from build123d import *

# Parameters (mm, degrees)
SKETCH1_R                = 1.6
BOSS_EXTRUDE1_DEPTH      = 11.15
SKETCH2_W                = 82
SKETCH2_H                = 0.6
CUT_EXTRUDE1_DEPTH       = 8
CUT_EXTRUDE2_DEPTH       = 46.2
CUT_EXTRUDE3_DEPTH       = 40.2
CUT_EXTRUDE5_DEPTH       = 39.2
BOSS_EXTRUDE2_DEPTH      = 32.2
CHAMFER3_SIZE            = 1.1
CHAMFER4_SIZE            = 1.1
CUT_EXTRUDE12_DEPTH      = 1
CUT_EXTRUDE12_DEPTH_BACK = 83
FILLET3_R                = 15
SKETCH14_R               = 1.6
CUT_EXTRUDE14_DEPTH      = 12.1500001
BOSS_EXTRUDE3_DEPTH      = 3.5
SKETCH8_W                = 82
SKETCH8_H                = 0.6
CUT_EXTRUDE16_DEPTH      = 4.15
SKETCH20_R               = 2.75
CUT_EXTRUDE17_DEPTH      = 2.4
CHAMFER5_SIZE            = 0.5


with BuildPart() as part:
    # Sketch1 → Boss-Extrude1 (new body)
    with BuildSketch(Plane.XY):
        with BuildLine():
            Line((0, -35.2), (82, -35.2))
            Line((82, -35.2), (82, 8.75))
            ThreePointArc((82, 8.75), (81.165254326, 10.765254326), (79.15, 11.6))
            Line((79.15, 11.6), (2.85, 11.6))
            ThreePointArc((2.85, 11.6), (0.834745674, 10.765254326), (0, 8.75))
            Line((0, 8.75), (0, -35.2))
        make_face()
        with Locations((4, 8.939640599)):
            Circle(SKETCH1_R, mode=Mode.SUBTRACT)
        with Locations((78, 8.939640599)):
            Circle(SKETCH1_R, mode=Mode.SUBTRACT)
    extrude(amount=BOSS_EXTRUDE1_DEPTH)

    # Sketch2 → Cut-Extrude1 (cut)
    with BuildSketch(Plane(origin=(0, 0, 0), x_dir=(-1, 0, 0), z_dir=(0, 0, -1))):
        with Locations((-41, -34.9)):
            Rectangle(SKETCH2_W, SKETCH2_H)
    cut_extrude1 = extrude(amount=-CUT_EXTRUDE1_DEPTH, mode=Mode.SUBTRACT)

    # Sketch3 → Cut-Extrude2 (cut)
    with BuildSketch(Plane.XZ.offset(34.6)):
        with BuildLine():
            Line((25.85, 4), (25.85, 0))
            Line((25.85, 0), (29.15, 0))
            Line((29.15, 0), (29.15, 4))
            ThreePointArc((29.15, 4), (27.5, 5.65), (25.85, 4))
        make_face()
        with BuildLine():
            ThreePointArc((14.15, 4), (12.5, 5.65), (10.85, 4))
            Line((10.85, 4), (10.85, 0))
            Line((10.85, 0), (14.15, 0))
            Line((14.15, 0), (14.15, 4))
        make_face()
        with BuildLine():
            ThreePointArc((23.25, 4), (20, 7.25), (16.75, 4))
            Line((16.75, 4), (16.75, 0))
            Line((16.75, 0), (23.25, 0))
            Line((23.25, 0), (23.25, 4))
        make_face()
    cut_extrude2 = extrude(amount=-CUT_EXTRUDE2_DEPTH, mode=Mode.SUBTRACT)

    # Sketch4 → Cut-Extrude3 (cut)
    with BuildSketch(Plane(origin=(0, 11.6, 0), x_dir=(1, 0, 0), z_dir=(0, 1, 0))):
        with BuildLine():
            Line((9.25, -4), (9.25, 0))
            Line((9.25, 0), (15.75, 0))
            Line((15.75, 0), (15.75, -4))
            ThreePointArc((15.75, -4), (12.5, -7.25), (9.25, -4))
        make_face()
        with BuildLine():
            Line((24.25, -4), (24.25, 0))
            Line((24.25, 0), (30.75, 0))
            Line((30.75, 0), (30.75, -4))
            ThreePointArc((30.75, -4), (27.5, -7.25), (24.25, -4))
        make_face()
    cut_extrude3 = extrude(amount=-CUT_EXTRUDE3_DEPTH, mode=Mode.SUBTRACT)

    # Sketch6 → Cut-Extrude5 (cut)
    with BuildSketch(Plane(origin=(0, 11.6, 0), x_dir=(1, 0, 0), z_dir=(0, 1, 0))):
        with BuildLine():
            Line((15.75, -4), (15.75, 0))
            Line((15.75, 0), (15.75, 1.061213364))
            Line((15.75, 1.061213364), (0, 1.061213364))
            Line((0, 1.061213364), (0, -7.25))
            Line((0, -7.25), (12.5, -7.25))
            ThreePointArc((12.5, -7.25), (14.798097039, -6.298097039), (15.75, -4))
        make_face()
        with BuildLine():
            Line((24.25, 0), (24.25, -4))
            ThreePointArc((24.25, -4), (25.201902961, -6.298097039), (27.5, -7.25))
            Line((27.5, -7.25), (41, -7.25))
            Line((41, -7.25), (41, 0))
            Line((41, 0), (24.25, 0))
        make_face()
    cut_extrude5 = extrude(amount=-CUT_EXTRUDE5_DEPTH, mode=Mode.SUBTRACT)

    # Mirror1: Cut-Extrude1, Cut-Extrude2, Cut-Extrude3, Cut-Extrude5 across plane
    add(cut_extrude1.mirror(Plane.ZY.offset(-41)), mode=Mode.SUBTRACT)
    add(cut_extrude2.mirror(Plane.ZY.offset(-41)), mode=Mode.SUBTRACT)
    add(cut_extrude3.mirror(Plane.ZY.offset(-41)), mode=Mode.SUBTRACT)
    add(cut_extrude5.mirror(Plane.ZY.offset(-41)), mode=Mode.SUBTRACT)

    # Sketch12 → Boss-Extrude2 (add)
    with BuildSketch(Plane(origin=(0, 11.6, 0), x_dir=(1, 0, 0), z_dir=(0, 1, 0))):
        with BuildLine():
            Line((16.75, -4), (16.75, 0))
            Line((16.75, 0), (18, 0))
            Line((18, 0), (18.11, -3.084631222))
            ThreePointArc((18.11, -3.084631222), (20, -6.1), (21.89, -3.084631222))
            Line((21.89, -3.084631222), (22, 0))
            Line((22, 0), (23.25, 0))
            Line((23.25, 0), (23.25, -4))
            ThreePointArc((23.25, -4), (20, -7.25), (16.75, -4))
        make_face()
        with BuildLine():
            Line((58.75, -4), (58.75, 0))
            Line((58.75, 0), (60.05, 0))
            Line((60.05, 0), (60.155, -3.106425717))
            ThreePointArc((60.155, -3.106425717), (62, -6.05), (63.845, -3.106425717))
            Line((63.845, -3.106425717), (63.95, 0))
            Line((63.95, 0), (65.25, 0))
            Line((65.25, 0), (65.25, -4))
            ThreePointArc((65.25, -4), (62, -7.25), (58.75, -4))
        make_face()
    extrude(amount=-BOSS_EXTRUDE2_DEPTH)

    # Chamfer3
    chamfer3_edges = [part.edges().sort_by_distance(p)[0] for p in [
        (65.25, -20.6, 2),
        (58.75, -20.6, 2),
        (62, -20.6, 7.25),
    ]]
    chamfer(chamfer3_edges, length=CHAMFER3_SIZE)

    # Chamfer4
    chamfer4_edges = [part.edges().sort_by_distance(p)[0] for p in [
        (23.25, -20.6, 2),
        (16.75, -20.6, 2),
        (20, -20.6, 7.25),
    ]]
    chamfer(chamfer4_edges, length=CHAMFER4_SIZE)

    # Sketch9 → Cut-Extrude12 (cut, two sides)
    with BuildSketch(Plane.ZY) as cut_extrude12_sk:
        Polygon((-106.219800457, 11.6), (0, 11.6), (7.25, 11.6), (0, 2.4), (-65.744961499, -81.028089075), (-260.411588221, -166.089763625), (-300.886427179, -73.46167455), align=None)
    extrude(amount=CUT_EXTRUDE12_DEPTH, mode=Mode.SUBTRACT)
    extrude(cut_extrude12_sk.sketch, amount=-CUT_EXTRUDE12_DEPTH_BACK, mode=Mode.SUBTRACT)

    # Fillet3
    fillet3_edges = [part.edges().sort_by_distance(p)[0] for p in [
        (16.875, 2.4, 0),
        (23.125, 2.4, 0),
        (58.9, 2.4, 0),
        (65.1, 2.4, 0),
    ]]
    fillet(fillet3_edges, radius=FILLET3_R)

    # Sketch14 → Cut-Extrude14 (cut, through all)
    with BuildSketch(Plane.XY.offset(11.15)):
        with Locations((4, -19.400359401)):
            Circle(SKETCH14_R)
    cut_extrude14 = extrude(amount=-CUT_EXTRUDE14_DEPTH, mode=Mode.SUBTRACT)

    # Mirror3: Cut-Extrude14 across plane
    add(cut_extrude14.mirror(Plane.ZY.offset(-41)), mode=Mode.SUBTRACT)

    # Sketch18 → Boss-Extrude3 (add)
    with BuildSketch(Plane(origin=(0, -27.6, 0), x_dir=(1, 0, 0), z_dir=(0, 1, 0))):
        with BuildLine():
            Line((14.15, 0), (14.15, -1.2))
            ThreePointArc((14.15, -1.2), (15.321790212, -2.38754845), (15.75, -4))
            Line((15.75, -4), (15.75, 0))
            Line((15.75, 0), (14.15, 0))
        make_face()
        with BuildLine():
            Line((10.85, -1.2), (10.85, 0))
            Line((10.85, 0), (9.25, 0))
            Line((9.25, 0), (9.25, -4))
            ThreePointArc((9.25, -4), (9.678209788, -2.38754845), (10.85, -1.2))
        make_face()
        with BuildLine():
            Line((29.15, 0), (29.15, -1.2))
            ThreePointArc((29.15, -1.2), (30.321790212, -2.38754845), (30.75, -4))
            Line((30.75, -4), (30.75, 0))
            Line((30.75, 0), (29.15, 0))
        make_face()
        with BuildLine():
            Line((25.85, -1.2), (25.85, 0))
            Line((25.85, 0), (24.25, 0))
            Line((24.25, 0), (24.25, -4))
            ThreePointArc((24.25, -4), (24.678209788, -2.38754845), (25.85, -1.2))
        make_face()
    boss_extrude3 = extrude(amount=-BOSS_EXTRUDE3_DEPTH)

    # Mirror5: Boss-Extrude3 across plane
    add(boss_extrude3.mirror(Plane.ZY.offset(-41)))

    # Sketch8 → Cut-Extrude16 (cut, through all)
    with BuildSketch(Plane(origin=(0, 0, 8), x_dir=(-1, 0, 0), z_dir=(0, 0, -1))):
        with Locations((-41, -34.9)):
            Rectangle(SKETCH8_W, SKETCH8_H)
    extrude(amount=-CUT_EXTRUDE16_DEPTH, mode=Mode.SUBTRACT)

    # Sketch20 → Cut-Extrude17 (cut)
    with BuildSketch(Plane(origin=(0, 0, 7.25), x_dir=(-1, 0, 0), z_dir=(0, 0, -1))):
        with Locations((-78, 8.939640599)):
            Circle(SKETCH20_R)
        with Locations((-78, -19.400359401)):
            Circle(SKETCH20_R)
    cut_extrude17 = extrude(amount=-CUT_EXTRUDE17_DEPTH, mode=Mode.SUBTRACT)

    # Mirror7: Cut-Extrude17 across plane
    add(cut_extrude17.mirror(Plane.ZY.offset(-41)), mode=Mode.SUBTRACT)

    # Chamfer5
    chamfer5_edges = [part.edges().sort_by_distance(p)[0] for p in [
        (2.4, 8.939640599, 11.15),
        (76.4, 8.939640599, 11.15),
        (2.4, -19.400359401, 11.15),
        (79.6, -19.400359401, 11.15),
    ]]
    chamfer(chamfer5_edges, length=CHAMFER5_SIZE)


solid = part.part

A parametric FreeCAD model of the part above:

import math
import FreeCAD as App
import Part
import Sketcher


def edges_at(feature, points):
    """Names of the edges that pass closest to the given points."""
    edges = feature.Shape.Edges
    near = lambda p: min(range(len(edges)), key=lambda i: edges[i].distToShape(Part.Vertex(*p))[0])
    return sorted({f"Edge{near(p) + 1}" for p in points})


def add_polygon(sketch, points):
    """Adds a closed chain of lines whose ends are joined by coincident constraints."""
    first, n = sketch.GeometryCount, len(points)
    for a, b in zip(points, points[1:] + points[:1]):
        sketch.addGeometry(Part.LineSegment(App.Vector(*a, 0), App.Vector(*b, 0)), False)
    for i in range(n):
        sketch.addConstraint(Sketcher.Constraint("Coincident", first + i, 2, first + (i + 1) % n, 1))

doc = App.newDocument("Part")
body = doc.addObject("PartDesign::Body", "Body")

# Sketch on XY plane
sketch1 = body.newObject("Sketcher::SketchObject", "Sketch")
sketch1.AttachmentSupport = (doc.getObject("XY_Plane"), [""])
sketch1.MapMode = "FlatFace"
sketch1.addGeometry(Part.LineSegment(App.Vector(0, -35.2, 0), App.Vector(82, -35.2, 0)), False)
sketch1.addGeometry(Part.LineSegment(App.Vector(82, -35.2, 0), App.Vector(82, 8.75, 0)), False)
sketch1.addGeometry(Part.ArcOfCircle(Part.Circle(App.Vector(79.15, 8.75, 0), App.Vector(0, 0, 1), 2.85), math.radians(0), math.radians(90)), False)
sketch1.addGeometry(Part.LineSegment(App.Vector(79.15, 11.6, 0), App.Vector(2.85, 11.6, 0)), False)
sketch1.addGeometry(Part.ArcOfCircle(Part.Circle(App.Vector(2.85, 8.75, 0), App.Vector(0, 0, 1), 2.85), math.radians(90), math.radians(180)), False)
sketch1.addGeometry(Part.LineSegment(App.Vector(0, 8.75, 0), App.Vector(0, -35.2, 0)), False)
sketch1.addGeometry(Part.Circle(App.Vector(4, 8.939641, 0), App.Vector(0, 0, 1), 1.6), False)
sketch1.addGeometry(Part.Circle(App.Vector(78, 8.939641, 0), App.Vector(0, 0, 1), 1.6), False)
sketch1.addConstraint(Sketcher.Constraint("Coincident", 0, 2, 1, 1))
sketch1.addConstraint(Sketcher.Constraint("Tangent", 1, 2, 2, 1))
sketch1.addConstraint(Sketcher.Constraint("Tangent", 2, 2, 3, 1))
sketch1.addConstraint(Sketcher.Constraint("Tangent", 3, 2, 4, 1))
sketch1.addConstraint(Sketcher.Constraint("Tangent", 4, 2, 5, 1))
sketch1.addConstraint(Sketcher.Constraint("Coincident", 5, 2, 0, 1))
sketch1.addConstraint(Sketcher.Constraint("Horizontal", 0))
sketch1.addConstraint(Sketcher.Constraint("Vertical", 1))
sketch1.addConstraint(Sketcher.Constraint("Horizontal", 3))
sketch1.addConstraint(Sketcher.Constraint("Vertical", 5))
sketch1.addConstraint(Sketcher.Constraint("Equal", 2, 4))
sketch1.addConstraint(Sketcher.Constraint("Equal", 6, 7))
sketch1.addConstraint(Sketcher.Constraint("PointOnObject", 4, 2, -2))
sketch1.addConstraint(Sketcher.Constraint("Horizontal", 6, 3, 7, 3))
sketch1.addConstraint(Sketcher.Constraint("Diameter", 6, 3.2))
sketch1.addConstraint(Sketcher.Constraint("DistanceX", 0, 1, 0, 2, 82.0))
sketch1.addConstraint(Sketcher.Constraint("Radius", 2, 2.85))
sketch1.addConstraint(Sketcher.Constraint("DistanceX", -1, 1, 6, 3, 4.0))
sketch1.addConstraint(Sketcher.Constraint("DistanceX", -1, 1, 7, 3, 78.0))
sketch1.addConstraint(Sketcher.Constraint("DistanceY", 1, 1, 1, 2, 43.95))
sketch1.addConstraint(Sketcher.Constraint("DistanceY", 0, 2, -1, 1, 35.2))
sketch1.addConstraint(Sketcher.Constraint("DistanceY", -1, 1, 6, 3, 8.939641))
pad1 = body.newObject("PartDesign::Pad", "Pad")
pad1.Profile = sketch1
pad1.Length = 11.15

# Sketch on XY plane
sketch2 = body.newObject("Sketcher::SketchObject", "Sketch001")
sketch2.AttachmentSupport = (doc.getObject("XY_Plane"), [""])
sketch2.MapMode = "FlatFace"
add_polygon(sketch2, [(82, -34.6), (82, -35.2), (0, -35.2), (0, -34.6)])  # lines 0-3
sketch2.addConstraint(Sketcher.Constraint("Vertical", 0))
sketch2.addConstraint(Sketcher.Constraint("Horizontal", 1))
sketch2.addConstraint(Sketcher.Constraint("Vertical", 2))
sketch2.addConstraint(Sketcher.Constraint("Horizontal", 3))
sketch2.addConstraint(Sketcher.Constraint("PointOnObject", 1, 2, -2))
sketch2.addConstraint(Sketcher.Constraint("DistanceX", 1, 2, 1, 1, 82.0))
sketch2.addConstraint(Sketcher.Constraint("DistanceY", 0, 2, 0, 1, 0.6))
sketch2.addConstraint(Sketcher.Constraint("DistanceY", 0, 2, -1, 1, 35.2))
pocket1 = body.newObject("PartDesign::Pocket", "Pocket")
pocket1.Profile = sketch2
pocket1.Length = 8
pocket1.Reversed = True

# Sketch on XZ plane
sketch3 = body.newObject("Sketcher::SketchObject", "Sketch002")
sketch3.AttachmentSupport = (doc.getObject("XZ_Plane"), [""])
sketch3.MapMode = "FlatFace"
sketch3.AttachmentOffset = App.Placement(App.Vector(0, 0, 34.6), App.Rotation())
sketch3.addGeometry(Part.LineSegment(App.Vector(25.85, 4, 0), App.Vector(25.85, 0, 0)), False)
sketch3.addGeometry(Part.LineSegment(App.Vector(25.85, 0, 0), App.Vector(29.15, 0, 0)), False)
sketch3.addGeometry(Part.LineSegment(App.Vector(29.15, 0, 0), App.Vector(29.15, 4, 0)), False)
sketch3.addGeometry(Part.ArcOfCircle(Part.Circle(App.Vector(27.5, 4, 0), App.Vector(0, 0, 1), 1.65), math.radians(0), math.radians(180)), False)
sketch3.addGeometry(Part.ArcOfCircle(Part.Circle(App.Vector(12.5, 4, 0), App.Vector(0, 0, 1), 1.65), math.radians(0), math.radians(180)), False)
sketch3.addGeometry(Part.LineSegment(App.Vector(10.85, 4, 0), App.Vector(10.85, 0, 0)), False)
sketch3.addGeometry(Part.LineSegment(App.Vector(10.85, 0, 0), App.Vector(14.15, 0, 0)), False)
sketch3.addGeometry(Part.LineSegment(App.Vector(14.15, 0, 0), App.Vector(14.15, 4, 0)), False)
sketch3.addGeometry(Part.ArcOfCircle(Part.Circle(App.Vector(20, 4, 0), App.Vector(0, 0, 1), 3.25), math.radians(0), math.radians(180)), False)
sketch3.addGeometry(Part.LineSegment(App.Vector(16.75, 4, 0), App.Vector(16.75, 0, 0)), False)
sketch3.addGeometry(Part.LineSegment(App.Vector(16.75, 0, 0), App.Vector(23.25, 0, 0)), False)
sketch3.addGeometry(Part.LineSegment(App.Vector(23.25, 0, 0), App.Vector(23.25, 4, 0)), False)
sketch3.addConstraint(Sketcher.Constraint("Coincident", 0, 2, 1, 1))
sketch3.addConstraint(Sketcher.Constraint("Coincident", 1, 2, 2, 1))
sketch3.addConstraint(Sketcher.Constraint("Tangent", 2, 2, 3, 1))
sketch3.addConstraint(Sketcher.Constraint("Tangent", 3, 2, 0, 1))
sketch3.addConstraint(Sketcher.Constraint("Tangent", 4, 2, 5, 1))
sketch3.addConstraint(Sketcher.Constraint("Coincident", 5, 2, 6, 1))
sketch3.addConstraint(Sketcher.Constraint("Coincident", 6, 2, 7, 1))
sketch3.addConstraint(Sketcher.Constraint("Tangent", 7, 2, 4, 1))
sketch3.addConstraint(Sketcher.Constraint("Tangent", 8, 2, 9, 1))
sketch3.addConstraint(Sketcher.Constraint("Coincident", 9, 2, 10, 1))
sketch3.addConstraint(Sketcher.Constraint("Coincident", 10, 2, 11, 1))
sketch3.addConstraint(Sketcher.Constraint("Tangent", 11, 2, 8, 1))
sketch3.addConstraint(Sketcher.Constraint("Vertical", 0))
sketch3.addConstraint(Sketcher.Constraint("Horizontal", 1))
sketch3.addConstraint(Sketcher.Constraint("Vertical", 2))
sketch3.addConstraint(Sketcher.Constraint("Vertical", 5))
sketch3.addConstraint(Sketcher.Constraint("Horizontal", 6))
sketch3.addConstraint(Sketcher.Constraint("Vertical", 7))
sketch3.addConstraint(Sketcher.Constraint("Vertical", 9))
sketch3.addConstraint(Sketcher.Constraint("Horizontal", 10))
sketch3.addConstraint(Sketcher.Constraint("Vertical", 11))
sketch3.addConstraint(Sketcher.Constraint("Equal", 3, 4))
sketch3.addConstraint(Sketcher.Constraint("PointOnObject", 0, 2, -1))
sketch3.addConstraint(Sketcher.Constraint("PointOnObject", 5, 2, -1))
sketch3.addConstraint(Sketcher.Constraint("PointOnObject", 9, 2, -1))
sketch3.addConstraint(Sketcher.Constraint("Horizontal", 3, 3, 4, 3))
sketch3.addConstraint(Sketcher.Constraint("Horizontal", 4, 3, 8, 3))
sketch3.addConstraint(Sketcher.Constraint("DistanceY", 0, 2, 0, 1, 4.0))
sketch3.addConstraint(Sketcher.Constraint("Radius", 3, 1.65))
sketch3.addConstraint(Sketcher.Constraint("Radius", 8, 3.25))
sketch3.addConstraint(Sketcher.Constraint("DistanceX", -1, 1, 8, 3, 20.0))
sketch3.addConstraint(Sketcher.Constraint("DistanceX", 4, 3, 3, 3, 15.0))
sketch3.addConstraint(Sketcher.Constraint("DistanceX", -1, 1, 3, 3, 27.5))
pocket2 = body.newObject("PartDesign::Pocket", "Pocket001")
pocket2.Profile = sketch3
pocket2.Length = 46.2

# Sketch on XZ plane
sketch4 = body.newObject("Sketcher::SketchObject", "Sketch003")
sketch4.AttachmentSupport = (doc.getObject("XZ_Plane"), [""])
sketch4.MapMode = "FlatFace"
sketch4.AttachmentOffset = App.Placement(App.Vector(0, 0, -11.6), App.Rotation())
sketch4.addGeometry(Part.LineSegment(App.Vector(9.25, 0, 0), App.Vector(9.25, 4, 0)), False)
sketch4.addGeometry(Part.ArcOfCircle(Part.Circle(App.Vector(12.5, 4, 0), App.Vector(0, 0, 1), 3.25), math.radians(0), math.radians(180)), False)
sketch4.addGeometry(Part.LineSegment(App.Vector(15.75, 4, 0), App.Vector(15.75, 0, 0)), False)
sketch4.addGeometry(Part.LineSegment(App.Vector(15.75, 0, 0), App.Vector(9.25, 0, 0)), False)
sketch4.addGeometry(Part.LineSegment(App.Vector(24.25, 0, 0), App.Vector(24.25, 4, 0)), False)
sketch4.addGeometry(Part.ArcOfCircle(Part.Circle(App.Vector(27.5, 4, 0), App.Vector(0, 0, 1), 3.25), math.radians(0), math.radians(180)), False)
sketch4.addGeometry(Part.LineSegment(App.Vector(30.75, 4, 0), App.Vector(30.75, 0, 0)), False)
sketch4.addGeometry(Part.LineSegment(App.Vector(30.75, 0, 0), App.Vector(24.25, 0, 0)), False)
sketch4.addConstraint(Sketcher.Constraint("Tangent", 0, 2, 1, 2))
sketch4.addConstraint(Sketcher.Constraint("Tangent", 1, 1, 2, 1))
sketch4.addConstraint(Sketcher.Constraint("Coincident", 2, 2, 3, 1))
sketch4.addConstraint(Sketcher.Constraint("Coincident", 3, 2, 0, 1))
sketch4.addConstraint(Sketcher.Constraint("Tangent", 4, 2, 5, 2))
sketch4.addConstraint(Sketcher.Constraint("Tangent", 5, 1, 6, 1))
sketch4.addConstraint(Sketcher.Constraint("Coincident", 6, 2, 7, 1))
sketch4.addConstraint(Sketcher.Constraint("Coincident", 7, 2, 4, 1))
sketch4.addConstraint(Sketcher.Constraint("Vertical", 0))
sketch4.addConstraint(Sketcher.Constraint("Vertical", 2))
sketch4.addConstraint(Sketcher.Constraint("Horizontal", 3))
sketch4.addConstraint(Sketcher.Constraint("Vertical", 4))
sketch4.addConstraint(Sketcher.Constraint("Vertical", 6))
sketch4.addConstraint(Sketcher.Constraint("Horizontal", 7))
sketch4.addConstraint(Sketcher.Constraint("Equal", 1, 5))
sketch4.addConstraint(Sketcher.Constraint("PointOnObject", 2, 2, -1))
sketch4.addConstraint(Sketcher.Constraint("PointOnObject", 6, 2, -1))
sketch4.addConstraint(Sketcher.Constraint("Horizontal", 1, 3, 5, 3))
sketch4.addConstraint(Sketcher.Constraint("DistanceY", 0, 1, 0, 2, 4.0))
sketch4.addConstraint(Sketcher.Constraint("Radius", 1, 3.25))
sketch4.addConstraint(Sketcher.Constraint("DistanceX", 1, 3, 5, 3, 15.0))
sketch4.addConstraint(Sketcher.Constraint("DistanceX", -1, 1, 1, 3, 12.5))
pocket3 = body.newObject("PartDesign::Pocket", "Pocket002")
pocket3.Profile = sketch4
pocket3.Length = 40.2
pocket3.Reversed = True

# Sketch on XZ plane
sketch5 = body.newObject("Sketcher::SketchObject", "Sketch004")
sketch5.AttachmentSupport = (doc.getObject("XZ_Plane"), [""])
sketch5.MapMode = "FlatFace"
sketch5.AttachmentOffset = App.Placement(App.Vector(0, 0, -11.6), App.Rotation())
sketch5.addGeometry(Part.LineSegment(App.Vector(15.75, 4, 0), App.Vector(15.75, -1.061213, 0)), False)
sketch5.addGeometry(Part.LineSegment(App.Vector(15.75, -1.061213, 0), App.Vector(0, -1.061213, 0)), False)
sketch5.addGeometry(Part.LineSegment(App.Vector(0, -1.061213, 0), App.Vector(0, 7.25, 0)), False)
sketch5.addGeometry(Part.LineSegment(App.Vector(0, 7.25, 0), App.Vector(12.5, 7.25, 0)), False)
sketch5.addGeometry(Part.ArcOfCircle(Part.Circle(App.Vector(12.5, 4, 0), App.Vector(0, 0, 1), 3.25), math.radians(0), math.radians(90)), False)
sketch5.addGeometry(Part.LineSegment(App.Vector(24.25, 0, 0), App.Vector(24.25, 4, 0)), False)
sketch5.addGeometry(Part.ArcOfCircle(Part.Circle(App.Vector(27.5, 4, 0), App.Vector(0, 0, 1), 3.25), math.radians(90), math.radians(180)), False)
sketch5.addGeometry(Part.LineSegment(App.Vector(27.5, 7.25, 0), App.Vector(41, 7.25, 0)), False)
sketch5.addGeometry(Part.LineSegment(App.Vector(41, 7.25, 0), App.Vector(41, 0, 0)), False)
sketch5.addGeometry(Part.LineSegment(App.Vector(41, 0, 0), App.Vector(24.25, 0, 0)), False)
sketch5.addConstraint(Sketcher.Constraint("Coincident", 0, 2, 1, 1))
sketch5.addConstraint(Sketcher.Constraint("Coincident", 1, 2, 2, 1))
sketch5.addConstraint(Sketcher.Constraint("Coincident", 2, 2, 3, 1))
sketch5.addConstraint(Sketcher.Constraint("Tangent", 3, 2, 4, 2))
sketch5.addConstraint(Sketcher.Constraint("Tangent", 4, 1, 0, 1))
sketch5.addConstraint(Sketcher.Constraint("Tangent", 5, 2, 6, 2))
sketch5.addConstraint(Sketcher.Constraint("Tangent", 6, 1, 7, 1))
sketch5.addConstraint(Sketcher.Constraint("Coincident", 7, 2, 8, 1))
sketch5.addConstraint(Sketcher.Constraint("Coincident", 8, 2, 9, 1))
sketch5.addConstraint(Sketcher.Constraint("Coincident", 9, 2, 5, 1))
sketch5.addConstraint(Sketcher.Constraint("Vertical", 0))
sketch5.addConstraint(Sketcher.Constraint("Horizontal", 1))
sketch5.addConstraint(Sketcher.Constraint("Vertical", 2))
sketch5.addConstraint(Sketcher.Constraint("Horizontal", 3))
sketch5.addConstraint(Sketcher.Constraint("Vertical", 5))
sketch5.addConstraint(Sketcher.Constraint("Horizontal", 7))
sketch5.addConstraint(Sketcher.Constraint("Vertical", 8))
sketch5.addConstraint(Sketcher.Constraint("Horizontal", 9))
sketch5.addConstraint(Sketcher.Constraint("Equal", 4, 6))
sketch5.addConstraint(Sketcher.Constraint("PointOnObject", 1, 2, -2))
sketch5.addConstraint(Sketcher.Constraint("PointOnObject", 8, 2, -1))
sketch5.addConstraint(Sketcher.Constraint("Horizontal", 4, 3, 6, 3))
sketch5.addConstraint(Sketcher.Constraint("DistanceY", 5, 1, 5, 2, 4.0))
sketch5.addConstraint(Sketcher.Constraint("Radius", 4, 3.25))
sketch5.addConstraint(Sketcher.Constraint("DistanceX", 3, 1, 3, 2, 12.5))
sketch5.addConstraint(Sketcher.Constraint("DistanceX", 7, 1, 7, 2, 13.5))
sketch5.addConstraint(Sketcher.Constraint("DistanceX", -1, 1, 7, 2, 41.0))
sketch5.addConstraint(Sketcher.Constraint("DistanceY", 0, 2, 0, 1, 5.061213))
pocket4 = body.newObject("PartDesign::Pocket", "Pocket003")
pocket4.Profile = sketch5
pocket4.Length = 39.2
pocket4.Reversed = True
doc.recompute()

datumplane = body.newObject("PartDesign::Plane", "DatumPlane")
datumplane.AttachmentSupport = (doc.getObject("YZ_Plane"), [""])
datumplane.MapMode = "FlatFace"
datumplane.AttachmentOffset = App.Placement(App.Vector(0, 0, 41), App.Rotation())
mirrored = body.newObject("PartDesign::Mirrored", "Mirrored")
mirrored.Originals = [pocket1, pocket2, pocket3, pocket4]
mirrored.MirrorPlane = (datumplane, [""])
body.Tip = mirrored

# Sketch on XZ plane
sketch6 = body.newObject("Sketcher::SketchObject", "Sketch005")
sketch6.AttachmentSupport = (doc.getObject("XZ_Plane"), [""])
sketch6.MapMode = "FlatFace"
sketch6.AttachmentOffset = App.Placement(App.Vector(0, 0, -11.6), App.Rotation())
sketch6.addGeometry(Part.LineSegment(App.Vector(16.75, 0, 0), App.Vector(16.75, 4, 0)), False)
sketch6.addGeometry(Part.ArcOfCircle(Part.Circle(App.Vector(20, 4, 0), App.Vector(0, 0, 1), 3.25), math.radians(0), math.radians(180)), False)
sketch6.addGeometry(Part.LineSegment(App.Vector(23.25, 4, 0), App.Vector(23.25, 0, 0)), False)
sketch6.addGeometry(Part.LineSegment(App.Vector(23.25, 0, 0), App.Vector(22, 0, 0)), False)
sketch6.addGeometry(Part.LineSegment(App.Vector(22, 0, 0), App.Vector(21.89, 3.084631, 0)), False)
sketch6.addGeometry(Part.ArcOfCircle(Part.Circle(App.Vector(20, 4, 0), App.Vector(0, 0, 1), 2.1), math.radians(-25.841933), math.radians(205.841933)), False)
sketch6.addGeometry(Part.LineSegment(App.Vector(18.11, 3.084631, 0), App.Vector(18, 0, 0)), False)
sketch6.addGeometry(Part.LineSegment(App.Vector(18, 0, 0), App.Vector(16.75, 0, 0)), False)
sketch6.addGeometry(Part.LineSegment(App.Vector(58.75, 0, 0), App.Vector(58.75, 4, 0)), False)
sketch6.addGeometry(Part.ArcOfCircle(Part.Circle(App.Vector(62, 4, 0), App.Vector(0, 0, 1), 3.25), math.radians(0), math.radians(180)), False)
sketch6.addGeometry(Part.LineSegment(App.Vector(65.25, 4, 0), App.Vector(65.25, 0, 0)), False)
sketch6.addGeometry(Part.LineSegment(App.Vector(65.25, 0, 0), App.Vector(63.95, 0, 0)), False)
sketch6.addGeometry(Part.LineSegment(App.Vector(63.95, 0, 0), App.Vector(63.845, 3.106426, 0)), False)
sketch6.addGeometry(Part.ArcOfCircle(Part.Circle(App.Vector(62, 4, 0), App.Vector(0, 0, 1), 2.05), math.radians(-25.841933), math.radians(205.841933)), False)
sketch6.addGeometry(Part.LineSegment(App.Vector(60.155, 3.106426, 0), App.Vector(60.05, 0, 0)), False)
sketch6.addGeometry(Part.LineSegment(App.Vector(60.05, 0, 0), App.Vector(58.75, 0, 0)), False)
sketch6.addConstraint(Sketcher.Constraint("Tangent", 0, 2, 1, 2))
sketch6.addConstraint(Sketcher.Constraint("Tangent", 1, 1, 2, 1))
sketch6.addConstraint(Sketcher.Constraint("Coincident", 2, 2, 3, 1))
sketch6.addConstraint(Sketcher.Constraint("Coincident", 3, 2, 4, 1))
sketch6.addConstraint(Sketcher.Constraint("Coincident", 4, 2, 5, 1))
sketch6.addConstraint(Sketcher.Constraint("Coincident", 5, 2, 6, 1))
sketch6.addConstraint(Sketcher.Constraint("Coincident", 6, 2, 7, 1))
sketch6.addConstraint(Sketcher.Constraint("Coincident", 7, 2, 0, 1))
sketch6.addConstraint(Sketcher.Constraint("Tangent", 8, 2, 9, 2))
sketch6.addConstraint(Sketcher.Constraint("Tangent", 9, 1, 10, 1))
sketch6.addConstraint(Sketcher.Constraint("Coincident", 10, 2, 11, 1))
sketch6.addConstraint(Sketcher.Constraint("Coincident", 11, 2, 12, 1))
sketch6.addConstraint(Sketcher.Constraint("Coincident", 12, 2, 13, 1))
sketch6.addConstraint(Sketcher.Constraint("Coincident", 13, 2, 14, 1))
sketch6.addConstraint(Sketcher.Constraint("Coincident", 14, 2, 15, 1))
sketch6.addConstraint(Sketcher.Constraint("Coincident", 15, 2, 8, 1))
sketch6.addConstraint(Sketcher.Constraint("Vertical", 0))
sketch6.addConstraint(Sketcher.Constraint("Vertical", 2))
sketch6.addConstraint(Sketcher.Constraint("Horizontal", 3))
sketch6.addConstraint(Sketcher.Constraint("Horizontal", 7))
sketch6.addConstraint(Sketcher.Constraint("Vertical", 8))
sketch6.addConstraint(Sketcher.Constraint("Vertical", 10))
sketch6.addConstraint(Sketcher.Constraint("Horizontal", 11))
sketch6.addConstraint(Sketcher.Constraint("Horizontal", 15))
sketch6.addConstraint(Sketcher.Constraint("Coincident", 5, 3, 1, 3))
sketch6.addConstraint(Sketcher.Constraint("Coincident", 13, 3, 9, 3))
sketch6.addConstraint(Sketcher.Constraint("Equal", 1, 9))
sketch6.addConstraint(Sketcher.Constraint("PointOnObject", 2, 2, -1))
sketch6.addConstraint(Sketcher.Constraint("PointOnObject", 6, 2, -1))
sketch6.addConstraint(Sketcher.Constraint("PointOnObject", 10, 2, -1))
sketch6.addConstraint(Sketcher.Constraint("PointOnObject", 14, 2, -1))
sketch6.addConstraint(Sketcher.Constraint("Horizontal", 5, 3, 9, 3))
sketch6.addConstraint(Sketcher.Constraint("Horizontal", 4, 2, 5, 2))
sketch6.addConstraint(Sketcher.Constraint("Horizontal", 12, 2, 13, 2))
sketch6.addConstraint(Sketcher.Constraint("Equal", 3, 7))
sketch6.addConstraint(Sketcher.Constraint("Equal", 11, 15))
sketch6.addConstraint(Sketcher.Constraint("Radius", 5, 2.1))
sketch6.addConstraint(Sketcher.Constraint("DistanceY", 0, 1, 0, 2, 4.0))
sketch6.addConstraint(Sketcher.Constraint("Radius", 1, 3.25))
sketch6.addConstraint(Sketcher.Constraint("Radius", 13, 2.05))
sketch6.addConstraint(Sketcher.Constraint("DistanceX", 11, 2, 11, 1, 1.3))
sketch6.addConstraint(Sketcher.Constraint("DistanceX", -1, 1, 1, 3, 20.0))
sketch6.addConstraint(Sketcher.Constraint("DistanceX", -1, 1, 9, 3, 62.0))
sketch6.addConstraint(Sketcher.Constraint("DistanceX", -1, 1, 3, 2, 22.0))
sketch6.addConstraint(Sketcher.Constraint("DistanceX", -1, 1, 4, 2, 21.89))
sketch6.addConstraint(Sketcher.Constraint("DistanceX", 13, 2, 12, 2, 3.69))
pad2 = body.newObject("PartDesign::Pad", "Pad001")
pad2.Profile = sketch6
pad2.Length = 32.2
doc.recompute()

chamfer = body.newObject("PartDesign::Chamfer", "Chamfer")
chamfer.Base = (pad2, edges_at(pad2, [(65.25, -20.6, 2), (58.75, -20.6, 2), (62, -20.6, 7.25)]))
chamfer.Size = 1.1
doc.recompute()

chamfer2 = body.newObject("PartDesign::Chamfer", "Chamfer001")
chamfer2.Base = (chamfer, edges_at(chamfer, [(23.25, -20.6, 2), (16.75, -20.6, 2), (20, -20.6, 7.25)]))
chamfer2.Size = 1.1

# Sketch on YZ plane
sketch7 = body.newObject("Sketcher::SketchObject", "Sketch006")
sketch7.AttachmentSupport = (doc.getObject("YZ_Plane"), [""])
sketch7.MapMode = "FlatFace"
add_polygon(sketch7, [(11.6, 7.25), (11.6, -106.2198), (-73.461675, -300.886427), (-166.089764, -260.411588), (-81.028089, -65.744961), (2.4, 0)])  # lines 0-5
sketch7.addConstraint(Sketcher.Constraint("Vertical", 0))
sketch7.addConstraint(Sketcher.Constraint("PointOnObject", 4, 2, -1))
sketch7.addConstraint(Sketcher.Constraint("Perpendicular", 1, 2))
sketch7.addConstraint(Sketcher.Constraint("Perpendicular", 2, 3))
sketch7.addConstraint(Sketcher.Constraint("Parallel", 4, 5))
sketch7.addConstraint(Sketcher.Constraint("Equal", 1, 3))
sketch7.addConstraint(Sketcher.Constraint("DistanceX", -1, 1, 0, 2, 11.6))
sketch7.addConstraint(Sketcher.Constraint("DistanceX", -1, 1, 4, 2, 2.4))
sketch7.addConstraint(Sketcher.Constraint("DistanceY", -1, 1, 5, 2, 7.25))
sketch7.addConstraint(Sketcher.Constraint("DistanceY", 0, 2, 0, 1, 113.4698))
sketch7.addConstraint(Sketcher.Constraint("Distance", 1, 212.439601))
sketch7.addConstraint(Sketcher.Constraint("Distance", 4, 106.2198))
pocket5 = body.newObject("PartDesign::Pocket", "Pocket004")
pocket5.Profile = sketch7
pocket5.Type = "ThroughAll"
pocket5.Midplane = True
doc.recompute()

fillet = body.newObject("PartDesign::Fillet", "Fillet")
fillet.Base = (pocket5, edges_at(pocket5, [
    (16.875, 2.4, 0),
    (23.125, 2.4, 0),
    (58.9, 2.4, 0),
    (65.1, 2.4, 0),
]))
fillet.Radius = 15

# Sketch on XY plane
sketch8 = body.newObject("Sketcher::SketchObject", "Sketch007")
sketch8.AttachmentSupport = (doc.getObject("XY_Plane"), [""])
sketch8.MapMode = "FlatFace"
sketch8.AttachmentOffset = App.Placement(App.Vector(0, 0, 11.15), App.Rotation())
sketch8.addGeometry(Part.Circle(App.Vector(4, -19.400359, 0), App.Vector(0, 0, 1), 1.6), False)
sketch8.addConstraint(Sketcher.Constraint("Diameter", 0, 3.2))
sketch8.addConstraint(Sketcher.Constraint("DistanceX", -1, 1, 0, 3, 4.0))
sketch8.addConstraint(Sketcher.Constraint("DistanceY", 0, 3, -1, 1, 19.400359))
pocket6 = body.newObject("PartDesign::Pocket", "Pocket005")
pocket6.Profile = sketch8
pocket6.Type = "ThroughAll"
doc.recompute()

datumplane2 = body.newObject("PartDesign::Plane", "DatumPlane001")
datumplane2.AttachmentSupport = (doc.getObject("YZ_Plane"), [""])
datumplane2.MapMode = "FlatFace"
datumplane2.AttachmentOffset = App.Placement(App.Vector(0, 0, 41), App.Rotation())
mirrored2 = body.newObject("PartDesign::Mirrored", "Mirrored001")
mirrored2.Originals = [pocket6]
mirrored2.MirrorPlane = (datumplane2, [""])
body.Tip = mirrored2

# Sketch on XZ plane
sketch9 = body.newObject("Sketcher::SketchObject", "Sketch008")
sketch9.AttachmentSupport = (doc.getObject("XZ_Plane"), [""])
sketch9.MapMode = "FlatFace"
sketch9.AttachmentOffset = App.Placement(App.Vector(0, 0, 27.6), App.Rotation())
sketch9.addGeometry(Part.LineSegment(App.Vector(14.15, 0, 0), App.Vector(14.15, 1.2, 0)), False)
sketch9.addGeometry(Part.ArcOfCircle(Part.Circle(App.Vector(12.5, 4, 0), App.Vector(0, 0, 1), 3.25), math.radians(-59.489763), math.radians(0)), False)
sketch9.addGeometry(Part.LineSegment(App.Vector(15.75, 4, 0), App.Vector(15.75, 0, 0)), False)
sketch9.addGeometry(Part.LineSegment(App.Vector(15.75, 0, 0), App.Vector(14.15, 0, 0)), False)
sketch9.addGeometry(Part.LineSegment(App.Vector(10.85, 1.2, 0), App.Vector(10.85, 0, 0)), False)
sketch9.addGeometry(Part.LineSegment(App.Vector(10.85, 0, 0), App.Vector(9.25, 0, 0)), False)
sketch9.addGeometry(Part.LineSegment(App.Vector(9.25, 0, 0), App.Vector(9.25, 4, 0)), False)
sketch9.addGeometry(Part.ArcOfCircle(Part.Circle(App.Vector(12.5, 4, 0), App.Vector(0, 0, 1), 3.25), math.radians(180), math.radians(239.489763)), False)
sketch9.addGeometry(Part.LineSegment(App.Vector(29.15, 0, 0), App.Vector(29.15, 1.2, 0)), False)
sketch9.addGeometry(Part.ArcOfCircle(Part.Circle(App.Vector(27.5, 4, 0), App.Vector(0, 0, 1), 3.25), math.radians(-59.489763), math.radians(0)), False)
sketch9.addGeometry(Part.LineSegment(App.Vector(30.75, 4, 0), App.Vector(30.75, 0, 0)), False)
sketch9.addGeometry(Part.LineSegment(App.Vector(30.75, 0, 0), App.Vector(29.15, 0, 0)), False)
sketch9.addGeometry(Part.LineSegment(App.Vector(25.85, 1.2, 0), App.Vector(25.85, 0, 0)), False)
sketch9.addGeometry(Part.LineSegment(App.Vector(25.85, 0, 0), App.Vector(24.25, 0, 0)), False)
sketch9.addGeometry(Part.LineSegment(App.Vector(24.25, 0, 0), App.Vector(24.25, 4, 0)), False)
sketch9.addGeometry(Part.ArcOfCircle(Part.Circle(App.Vector(27.5, 4, 0), App.Vector(0, 0, 1), 3.25), math.radians(180), math.radians(239.489763)), False)
sketch9.addConstraint(Sketcher.Constraint("Coincident", 0, 2, 1, 1))
sketch9.addConstraint(Sketcher.Constraint("Tangent", 1, 2, 2, 1))
sketch9.addConstraint(Sketcher.Constraint("Coincident", 2, 2, 3, 1))
sketch9.addConstraint(Sketcher.Constraint("Coincident", 3, 2, 0, 1))
sketch9.addConstraint(Sketcher.Constraint("Coincident", 4, 2, 5, 1))
sketch9.addConstraint(Sketcher.Constraint("Coincident", 5, 2, 6, 1))
sketch9.addConstraint(Sketcher.Constraint("Tangent", 6, 2, 7, 1))
sketch9.addConstraint(Sketcher.Constraint("Coincident", 7, 2, 4, 1))
sketch9.addConstraint(Sketcher.Constraint("Coincident", 8, 2, 9, 1))
sketch9.addConstraint(Sketcher.Constraint("Tangent", 9, 2, 10, 1))
sketch9.addConstraint(Sketcher.Constraint("Coincident", 10, 2, 11, 1))
sketch9.addConstraint(Sketcher.Constraint("Coincident", 11, 2, 8, 1))
sketch9.addConstraint(Sketcher.Constraint("Coincident", 12, 2, 13, 1))
sketch9.addConstraint(Sketcher.Constraint("Coincident", 13, 2, 14, 1))
sketch9.addConstraint(Sketcher.Constraint("Tangent", 14, 2, 15, 1))
sketch9.addConstraint(Sketcher.Constraint("Coincident", 15, 2, 12, 1))
sketch9.addConstraint(Sketcher.Constraint("Vertical", 0))
sketch9.addConstraint(Sketcher.Constraint("Vertical", 2))
sketch9.addConstraint(Sketcher.Constraint("Horizontal", 3))
sketch9.addConstraint(Sketcher.Constraint("Vertical", 4))
sketch9.addConstraint(Sketcher.Constraint("Horizontal", 5))
sketch9.addConstraint(Sketcher.Constraint("Vertical", 6))
sketch9.addConstraint(Sketcher.Constraint("Vertical", 8))
sketch9.addConstraint(Sketcher.Constraint("Vertical", 10))
sketch9.addConstraint(Sketcher.Constraint("Horizontal", 11))
sketch9.addConstraint(Sketcher.Constraint("Vertical", 12))
sketch9.addConstraint(Sketcher.Constraint("Horizontal", 13))
sketch9.addConstraint(Sketcher.Constraint("Vertical", 14))
sketch9.addConstraint(Sketcher.Constraint("Coincident", 7, 3, 1, 3))
sketch9.addConstraint(Sketcher.Constraint("Coincident", 15, 3, 9, 3))
sketch9.addConstraint(Sketcher.Constraint("Equal", 1, 7))
sketch9.addConstraint(Sketcher.Constraint("Equal", 7, 9))
sketch9.addConstraint(Sketcher.Constraint("Equal", 9, 15))
sketch9.addConstraint(Sketcher.Constraint("PointOnObject", 2, 2, -1))
sketch9.addConstraint(Sketcher.Constraint("PointOnObject", 4, 2, -1))
sketch9.addConstraint(Sketcher.Constraint("PointOnObject", 10, 2, -1))
sketch9.addConstraint(Sketcher.Constraint("PointOnObject", 12, 2, -1))
sketch9.addConstraint(Sketcher.Constraint("Horizontal", 7, 3, 9, 3))
sketch9.addConstraint(Sketcher.Constraint("Horizontal", 0, 2, 7, 2))
sketch9.addConstraint(Sketcher.Constraint("Horizontal", 7, 2, 8, 2))
sketch9.addConstraint(Sketcher.Constraint("Horizontal", 8, 2, 15, 2))
sketch9.addConstraint(Sketcher.Constraint("DistanceY", 2, 2, 2, 1, 4.0))
sketch9.addConstraint(Sketcher.Constraint("Radius", 1, 3.25))
sketch9.addConstraint(Sketcher.Constraint("DistanceX", 3, 2, 3, 1, 1.6))
sketch9.addConstraint(Sketcher.Constraint("DistanceX", 1, 3, 9, 3, 15.0))
sketch9.addConstraint(Sketcher.Constraint("DistanceX", -1, 1, 1, 3, 12.5))
pad3 = body.newObject("PartDesign::Pad", "Pad002")
pad3.Profile = sketch9
pad3.Length = 3.5
doc.recompute()

datumplane3 = body.newObject("PartDesign::Plane", "DatumPlane002")
datumplane3.AttachmentSupport = (doc.getObject("YZ_Plane"), [""])
datumplane3.MapMode = "FlatFace"
datumplane3.AttachmentOffset = App.Placement(App.Vector(0, 0, 41), App.Rotation())
mirrored3 = body.newObject("PartDesign::Mirrored", "Mirrored002")
mirrored3.Originals = [pad3]
mirrored3.MirrorPlane = (datumplane3, [""])
body.Tip = mirrored3

# Sketch on XY plane
sketch10 = body.newObject("Sketcher::SketchObject", "Sketch009")
sketch10.AttachmentSupport = (doc.getObject("XY_Plane"), [""])
sketch10.MapMode = "FlatFace"
sketch10.AttachmentOffset = App.Placement(App.Vector(0, 0, 8), App.Rotation())
add_polygon(sketch10, [(82, -34.6), (82, -35.2), (0, -35.2), (0, -34.6)])  # lines 0-3
sketch10.addConstraint(Sketcher.Constraint("Vertical", 0))
sketch10.addConstraint(Sketcher.Constraint("Horizontal", 1))
sketch10.addConstraint(Sketcher.Constraint("Vertical", 2))
sketch10.addConstraint(Sketcher.Constraint("Horizontal", 3))
sketch10.addConstraint(Sketcher.Constraint("PointOnObject", 1, 2, -2))
sketch10.addConstraint(Sketcher.Constraint("DistanceX", 1, 2, 1, 1, 82.0))
sketch10.addConstraint(Sketcher.Constraint("DistanceY", 0, 2, 0, 1, 0.6))
sketch10.addConstraint(Sketcher.Constraint("DistanceY", 0, 2, -1, 1, 35.2))
pocket7 = body.newObject("PartDesign::Pocket", "Pocket006")
pocket7.Profile = sketch10
pocket7.Type = "ThroughAll"
pocket7.Reversed = True

# Sketch on XY plane
sketch11 = body.newObject("Sketcher::SketchObject", "Sketch010")
sketch11.AttachmentSupport = (doc.getObject("XY_Plane"), [""])
sketch11.MapMode = "FlatFace"
sketch11.AttachmentOffset = App.Placement(App.Vector(0, 0, 7.25), App.Rotation())
sketch11.addGeometry(Part.Circle(App.Vector(78, 8.939641, 0), App.Vector(0, 0, 1), 2.75), False)
sketch11.addGeometry(Part.Circle(App.Vector(78, -19.400359, 0), App.Vector(0, 0, 1), 2.75), False)
sketch11.addConstraint(Sketcher.Constraint("Equal", 0, 1))
sketch11.addConstraint(Sketcher.Constraint("Vertical", 0, 3, 1, 3))
sketch11.addConstraint(Sketcher.Constraint("Diameter", 0, 5.5))
sketch11.addConstraint(Sketcher.Constraint("DistanceX", -1, 1, 0, 3, 78.0))
sketch11.addConstraint(Sketcher.Constraint("DistanceY", 1, 3, 0, 3, 28.34))
sketch11.addConstraint(Sketcher.Constraint("DistanceY", -1, 1, 0, 3, 8.939641))
pocket8 = body.newObject("PartDesign::Pocket", "Pocket007")
pocket8.Profile = sketch11
pocket8.Length = 2.4
pocket8.Reversed = True
doc.recompute()

datumplane4 = body.newObject("PartDesign::Plane", "DatumPlane003")
datumplane4.AttachmentSupport = (doc.getObject("YZ_Plane"), [""])
datumplane4.MapMode = "FlatFace"
datumplane4.AttachmentOffset = App.Placement(App.Vector(0, 0, 41), App.Rotation())
mirrored4 = body.newObject("PartDesign::Mirrored", "Mirrored003")
mirrored4.Originals = [pocket8]
mirrored4.MirrorPlane = (datumplane4, [""])
body.Tip = mirrored4
doc.recompute()

chamfer3 = body.newObject("PartDesign::Chamfer", "Chamfer002")
chamfer3.Base = (mirrored4, edges_at(mirrored4, [
    (2.4, 8.94, 11.15),
    (76.4, 8.94, 11.15),
    (2.4, -19.4, 11.15),
    (79.6, -19.4, 11.15),
]))
chamfer3.Size = 0.5

doc.recompute()
